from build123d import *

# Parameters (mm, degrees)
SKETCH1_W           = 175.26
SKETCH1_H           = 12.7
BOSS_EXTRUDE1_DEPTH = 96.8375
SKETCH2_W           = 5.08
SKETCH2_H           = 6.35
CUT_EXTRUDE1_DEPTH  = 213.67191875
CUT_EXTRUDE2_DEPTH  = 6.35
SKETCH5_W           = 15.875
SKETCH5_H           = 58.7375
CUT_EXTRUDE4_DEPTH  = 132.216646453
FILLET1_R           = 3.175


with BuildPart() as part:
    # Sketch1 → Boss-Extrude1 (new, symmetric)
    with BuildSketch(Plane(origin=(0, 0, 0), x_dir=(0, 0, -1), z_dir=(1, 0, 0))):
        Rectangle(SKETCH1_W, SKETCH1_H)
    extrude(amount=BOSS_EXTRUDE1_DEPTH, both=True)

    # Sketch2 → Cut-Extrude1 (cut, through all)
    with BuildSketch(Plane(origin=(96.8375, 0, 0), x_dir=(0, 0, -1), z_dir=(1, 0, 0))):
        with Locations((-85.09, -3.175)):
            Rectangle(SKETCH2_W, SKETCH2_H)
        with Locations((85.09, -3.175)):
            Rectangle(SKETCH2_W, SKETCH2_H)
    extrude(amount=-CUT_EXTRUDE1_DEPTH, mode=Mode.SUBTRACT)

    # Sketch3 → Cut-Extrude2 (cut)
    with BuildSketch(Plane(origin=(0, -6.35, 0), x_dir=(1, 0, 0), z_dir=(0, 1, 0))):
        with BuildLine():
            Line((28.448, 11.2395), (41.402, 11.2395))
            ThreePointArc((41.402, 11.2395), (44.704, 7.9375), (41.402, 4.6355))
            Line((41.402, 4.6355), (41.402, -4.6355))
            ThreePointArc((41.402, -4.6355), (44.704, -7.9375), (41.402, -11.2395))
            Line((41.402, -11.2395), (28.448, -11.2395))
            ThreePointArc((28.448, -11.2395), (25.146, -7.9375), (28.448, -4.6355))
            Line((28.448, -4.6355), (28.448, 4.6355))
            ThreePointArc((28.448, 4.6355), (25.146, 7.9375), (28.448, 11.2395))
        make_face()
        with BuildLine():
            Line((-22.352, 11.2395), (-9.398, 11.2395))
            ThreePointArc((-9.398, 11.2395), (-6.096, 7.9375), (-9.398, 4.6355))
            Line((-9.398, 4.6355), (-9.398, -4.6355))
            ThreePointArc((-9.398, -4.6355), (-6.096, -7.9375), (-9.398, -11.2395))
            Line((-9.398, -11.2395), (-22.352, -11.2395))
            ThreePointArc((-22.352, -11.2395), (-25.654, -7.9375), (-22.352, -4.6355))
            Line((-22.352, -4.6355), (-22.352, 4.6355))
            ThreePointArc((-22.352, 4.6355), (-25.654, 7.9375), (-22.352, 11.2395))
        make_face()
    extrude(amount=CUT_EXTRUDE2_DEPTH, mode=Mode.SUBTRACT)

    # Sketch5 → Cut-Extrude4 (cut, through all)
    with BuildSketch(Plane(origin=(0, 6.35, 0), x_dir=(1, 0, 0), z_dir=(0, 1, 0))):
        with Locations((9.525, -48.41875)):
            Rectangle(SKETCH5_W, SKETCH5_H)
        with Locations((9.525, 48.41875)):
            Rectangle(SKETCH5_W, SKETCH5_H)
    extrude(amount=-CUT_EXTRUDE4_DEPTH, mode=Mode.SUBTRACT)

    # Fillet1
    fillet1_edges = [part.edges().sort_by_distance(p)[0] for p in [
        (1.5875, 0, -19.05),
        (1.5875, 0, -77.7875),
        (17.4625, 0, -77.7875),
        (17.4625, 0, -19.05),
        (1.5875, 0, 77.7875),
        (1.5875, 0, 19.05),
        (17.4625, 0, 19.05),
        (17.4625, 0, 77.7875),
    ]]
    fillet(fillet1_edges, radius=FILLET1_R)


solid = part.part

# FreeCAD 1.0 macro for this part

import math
import FreeCAD as App
import Part
import Sketcher

V = App.Vector
Q = App.Units.Quantity


def edges_at(feature, points):
    """Names of the edges that pass closest to the given points."""
    edges = feature.Shape.Edges
    near = lambda p: min(range(len(edges)), key=lambda i: edges[i].distToShape(Part.Vertex(*p))[0])
    return sorted({f"Edge{near(p) + 1}" for p in points})


def add_polygon(sketch, points):
    """Adds a closed chain of lines whose ends are joined by coincident constraints."""
    first, n = sketch.GeometryCount, len(points)
    for a, b in zip(points, points[1:] + points[:1]):
        sketch.addGeometry(Part.LineSegment(App.Vector(*a, 0), App.Vector(*b, 0)), False)
    for i in range(n):
        sketch.addConstraint(Sketcher.Constraint("Coincident", first + i, 2, first + (i + 1) % n, 1))

doc = App.newDocument("Part")
body = doc.addObject("PartDesign::Body", "Body")

# Sketch on YZ plane
sketch1 = body.newObject("Sketcher::SketchObject", "Sketch")
sketch1.AttachmentSupport = (doc.getObject("YZ_Plane"), [""])
sketch1.MapMode = "FlatFace"
add_polygon(sketch1, [(6, 88), (-6, 88), (-6, -88), (6, -88)])  # lines 0-3
sketch1.addConstraint([
    Sketcher.Constraint("Horizontal", 0),
    Sketcher.Constraint("Vertical", 1),
    Sketcher.Constraint("Horizontal", 2),
    Sketcher.Constraint("Vertical", 3),
    Sketcher.Constraint("Symmetric", 0, 2, 2, 2, -1, 1),
    Sketcher.Constraint("DistanceX", 0, 2, 0, 1, Q("0.5 in")),
    Sketcher.Constraint("DistanceY", 1, 2, 1, 1, Q("6.9 in")),
])
pad1 = body.newObject("PartDesign::Pad", "Pad")
pad1.Profile = sketch1
pad1.Length = Q("7.625 in")
pad1.Midplane = True

# Sketch on YZ plane
sketch2 = body.newObject("Sketcher::SketchObject", "Sketch001")
sketch2.AttachmentSupport = (doc.getObject("YZ_Plane"), [""])
sketch2.MapMode = "FlatFace"
sketch2.AttachmentOffset = App.Placement(V(0, 0, 3.8125 * 25.4), App.Rotation())
add_polygon(sketch2, [(0, 88), (-6, 88), (-6, 83), (0, 83)])  # lines 0-3
add_polygon(sketch2, [(0, -83), (-6, -83), (-6, -88), (0, -88)])  # lines 4-7
sketch2.addConstraint([
    Sketcher.Constraint("Horizontal", 0),
    Sketcher.Constraint("Vertical", 1),
    Sketcher.Constraint("Horizontal", 2),
    Sketcher.Constraint("Vertical", 3),
    Sketcher.Constraint("Horizontal", 4),
    Sketcher.Constraint("Vertical", 5),
    Sketcher.Constraint("Horizontal", 6),
    Sketcher.Constraint("Vertical", 7),
    Sketcher.Constraint("Symmetric", 3, 2, 6, 2, -1, 1),
    Sketcher.Constraint("Symmetric", 1, 2, 4, 2, -1),
    Sketcher.Constraint("PointOnObject", 2, 2, -2),
    Sketcher.Constraint("DistanceY", 1, 2, 1, 1, Q("0.2 in")),
    Sketcher.Constraint("DistanceX", 0, 2, 0, 1, Q("0.25 in")),
    Sketcher.Constraint("DistanceY", 4, 2, 1, 2, Q("6.5 in")),
])
pocket1 = body.newObject("PartDesign::Pocket", "Pocket")
pocket1.Profile = sketch2
pocket1.Type = "ThroughAll"

# Sketch on XZ plane
sketch3 = body.newObject("Sketcher::SketchObject", "Sketch002")
sketch3.AttachmentSupport = (doc.getObject("XZ_Plane"), [""])
sketch3.MapMode = "FlatFace"
sketch3.AttachmentOffset = App.Placement(V(0, 0, 0.25 * 25.4), App.Rotation())
sketch3.addGeometry([
    Part.LineSegment(V(41.4, -11.2, 0), V(28.4, -11.2, 0)),  # 0
    Part.ArcOfCircle(Part.Circle(V(28.4, -7.9, 0), V(0, 0, 1), 3.3), math.radians(90), math.radians(270)),  # 1
    Part.LineSegment(V(28.4, -4.6, 0), V(28.4, 4.6, 0)),  # 2
    Part.ArcOfCircle(Part.Circle(V(28.4, 7.9, 0), V(0, 0, 1), 3.3), math.radians(90), math.radians(270)),  # 3
    Part.LineSegment(V(28.4, 11.2, 0), V(41.4, 11.2, 0)),  # 4
    Part.ArcOfCircle(Part.Circle(V(41.4, 7.9, 0), V(0, 0, 1), 3.3), math.radians(-90), math.radians(90)),  # 5
    Part.LineSegment(V(41.4, 4.6, 0), V(41.4, -4.6, 0)),  # 6
    Part.ArcOfCircle(Part.Circle(V(41.4, -7.9, 0), V(0, 0, 1), 3.3), math.radians(-90), math.radians(90)),  # 7
    Part.LineSegment(V(-9.4, -11.2, 0), V(-22.4, -11.2, 0)),  # 8
    Part.ArcOfCircle(Part.Circle(V(-22.4, -7.9, 0), V(0, 0, 1), 3.3), math.radians(90), math.radians(270)),  # 9
    Part.LineSegment(V(-22.4, -4.6, 0), V(-22.4, 4.6, 0)),  # 10
    Part.ArcOfCircle(Part.Circle(V(-22.4, 7.9, 0), V(0, 0, 1), 3.3), math.radians(90), math.radians(270)),  # 11
    Part.LineSegment(V(-22.4, 11.2, 0), V(-9.4, 11.2, 0)),  # 12
    Part.ArcOfCircle(Part.Circle(V(-9.4, 7.9, 0), V(0, 0, 1), 3.3), math.radians(-90), math.radians(90)),  # 13
    Part.LineSegment(V(-9.4, 4.6, 0), V(-9.4, -4.6, 0)),  # 14
    Part.ArcOfCircle(Part.Circle(V(-9.4, -7.9, 0), V(0, 0, 1), 3.3), math.radians(-90), math.radians(90)),  # 15
], False)
sketch3.addConstraint([
    Sketcher.Constraint("Tangent", 0, 2, 1, 2),
    Sketcher.Constraint("Coincident", 1, 1, 2, 1),
    Sketcher.Constraint("Coincident", 2, 2, 3, 2),
    Sketcher.Constraint("Tangent", 3, 1, 4, 1),
    Sketcher.Constraint("Tangent", 4, 2, 5, 2),
    Sketcher.Constraint("Coincident", 5, 1, 6, 1),
    Sketcher.Constraint("Coincident", 6, 2, 7, 2),
    Sketcher.Constraint("Tangent", 7, 1, 0, 1),
    Sketcher.Constraint("Tangent", 8, 2, 9, 2),
    Sketcher.Constraint("Coincident", 9, 1, 10, 1),
    Sketcher.Constraint("Coincident", 10, 2, 11, 2),
    Sketcher.Constraint("Tangent", 11, 1, 12, 1),
    Sketcher.Constraint("Tangent", 12, 2, 13, 2),
    Sketcher.Constraint("Coincident", 13, 1, 14, 1),
    Sketcher.Constraint("Coincident", 14, 2, 15, 2),
    Sketcher.Constraint("Tangent", 15, 1, 8, 1),
    Sketcher.Constraint("Horizontal", 0),
    Sketcher.Constraint("Vertical", 2),
    Sketcher.Constraint("Horizontal", 4),
    Sketcher.Constraint("Vertical", 6),
    Sketcher.Constraint("Horizontal", 8),
    Sketcher.Constraint("Vertical", 10),
    Sketcher.Constraint("Horizontal", 12),
    Sketcher.Constraint("Vertical", 14),
    Sketcher.Constraint("Equal", 1, 3),
    Sketcher.Constraint("Equal", 3, 5),
    Sketcher.Constraint("Equal", 5, 7),
    Sketcher.Constraint("Equal", 7, 9),
    Sketcher.Constraint("Equal", 9, 11),
    Sketcher.Constraint("Equal", 11, 13),
    Sketcher.Constraint("Equal", 13, 15),
    Sketcher.Constraint("Symmetric", 1, 3, 3, 3, -1),
    Sketcher.Constraint("Symmetric", 9, 3, 11, 3, -1),
    Sketcher.Constraint("Horizontal", 7, 3, 9, 3),
    Sketcher.Constraint("Vertical", 5, 3, 7, 3),
    Sketcher.Constraint("Vertical", 13, 3, 15, 3),
    Sketcher.Constraint("Vertical", 0, 2, 1, 1),
    Sketcher.Constraint("Vertical", 4, 2, 5, 1),
    Sketcher.Constraint("Vertical", 8, 2, 9, 1),
    Sketcher.Constraint("Vertical", 12, 2, 13, 1),
    Sketcher.Constraint("Equal", 4, 8),
    Sketcher.Constraint("Radius", 1, Q("0.13 in")),
    Sketcher.Constraint("DistanceX", 9, 3, 1, 3, Q("2 in")),
    Sketcher.Constraint("DistanceX", 0, 2, 0, 1, Q("0.51 in")),
    Sketcher.Constraint("DistanceY", 2, 1, 2, 2, Q("0.365 in")),
    Sketcher.Constraint("DistanceX", -1, 1, 1, 3, Q("1.12 in")),
])
pocket2 = body.newObject("PartDesign::Pocket", "Pocket001")
pocket2.Profile = sketch3
pocket2.Length = Q("0.25 in")

# Sketch on XZ plane
sketch4 = body.newObject("Sketcher::SketchObject", "Sketch003")
sketch4.AttachmentSupport = (doc.getObject("XZ_Plane"), [""])
sketch4.MapMode = "FlatFace"
sketch4.AttachmentOffset = App.Placement(V(0, 0, -0.25 * 25.4), App.Rotation())
add_polygon(sketch4, [(2, 19), (2, 78), (17, 78), (17, 19)])  # lines 0-3
add_polygon(sketch4, [(2, -78), (2, -19), (17, -19), (17, -78)])  # lines 4-7
sketch4.addConstraint([
    Sketcher.Constraint("Vertical", 0),
    Sketcher.Constraint("Horizontal", 1),
    Sketcher.Constraint("Vertical", 2),
    Sketcher.Constraint("Horizontal", 3),
    Sketcher.Constraint("Vertical", 4),
    Sketcher.Constraint("Horizontal", 5),
    Sketcher.Constraint("Vertical", 6),
    Sketcher.Constraint("Horizontal", 7),
    Sketcher.Constraint("Symmetric", 3, 2, 4, 2, -1),
    Sketcher.Constraint("Symmetric", 1, 2, 6, 2, -1),
    Sketcher.Constraint("DistanceY", 4, 2, 3, 2, Q("1.5 in")),
    Sketcher.Constraint("DistanceX", 1, 1, 1, 2, Q("0.625 in")),
    Sketcher.Constraint("DistanceY", 0, 1, 0, 2, Q("2.3125 in")),
    Sketcher.Constraint("DistanceX", -1, 1, 0, 2, Q("0.0625 in")),
])
pocket3 = body.newObject("PartDesign::Pocket", "Pocket002")
pocket3.Profile = sketch4
pocket3.Type = "ThroughAll"
pocket3.Reversed = True
doc.recompute()

fillet = body.newObject("PartDesign::Fillet", "Fillet")
fillet.Base = (pocket3, edges_at(pocket3, [
    (1.587, 0, -19.05),
    (1.587, 0, -77.787),
    (17.462, 0, -77.787),
    (17.462, 0, -19.05),
    (1.587, 0, 77.787),
    (1.587, 0, 19.05),
    (17.462, 0, 19.05),
    (17.462, 0, 77.787),
]))
fillet.Radius = Q("0.125 in")

doc.recompute()
